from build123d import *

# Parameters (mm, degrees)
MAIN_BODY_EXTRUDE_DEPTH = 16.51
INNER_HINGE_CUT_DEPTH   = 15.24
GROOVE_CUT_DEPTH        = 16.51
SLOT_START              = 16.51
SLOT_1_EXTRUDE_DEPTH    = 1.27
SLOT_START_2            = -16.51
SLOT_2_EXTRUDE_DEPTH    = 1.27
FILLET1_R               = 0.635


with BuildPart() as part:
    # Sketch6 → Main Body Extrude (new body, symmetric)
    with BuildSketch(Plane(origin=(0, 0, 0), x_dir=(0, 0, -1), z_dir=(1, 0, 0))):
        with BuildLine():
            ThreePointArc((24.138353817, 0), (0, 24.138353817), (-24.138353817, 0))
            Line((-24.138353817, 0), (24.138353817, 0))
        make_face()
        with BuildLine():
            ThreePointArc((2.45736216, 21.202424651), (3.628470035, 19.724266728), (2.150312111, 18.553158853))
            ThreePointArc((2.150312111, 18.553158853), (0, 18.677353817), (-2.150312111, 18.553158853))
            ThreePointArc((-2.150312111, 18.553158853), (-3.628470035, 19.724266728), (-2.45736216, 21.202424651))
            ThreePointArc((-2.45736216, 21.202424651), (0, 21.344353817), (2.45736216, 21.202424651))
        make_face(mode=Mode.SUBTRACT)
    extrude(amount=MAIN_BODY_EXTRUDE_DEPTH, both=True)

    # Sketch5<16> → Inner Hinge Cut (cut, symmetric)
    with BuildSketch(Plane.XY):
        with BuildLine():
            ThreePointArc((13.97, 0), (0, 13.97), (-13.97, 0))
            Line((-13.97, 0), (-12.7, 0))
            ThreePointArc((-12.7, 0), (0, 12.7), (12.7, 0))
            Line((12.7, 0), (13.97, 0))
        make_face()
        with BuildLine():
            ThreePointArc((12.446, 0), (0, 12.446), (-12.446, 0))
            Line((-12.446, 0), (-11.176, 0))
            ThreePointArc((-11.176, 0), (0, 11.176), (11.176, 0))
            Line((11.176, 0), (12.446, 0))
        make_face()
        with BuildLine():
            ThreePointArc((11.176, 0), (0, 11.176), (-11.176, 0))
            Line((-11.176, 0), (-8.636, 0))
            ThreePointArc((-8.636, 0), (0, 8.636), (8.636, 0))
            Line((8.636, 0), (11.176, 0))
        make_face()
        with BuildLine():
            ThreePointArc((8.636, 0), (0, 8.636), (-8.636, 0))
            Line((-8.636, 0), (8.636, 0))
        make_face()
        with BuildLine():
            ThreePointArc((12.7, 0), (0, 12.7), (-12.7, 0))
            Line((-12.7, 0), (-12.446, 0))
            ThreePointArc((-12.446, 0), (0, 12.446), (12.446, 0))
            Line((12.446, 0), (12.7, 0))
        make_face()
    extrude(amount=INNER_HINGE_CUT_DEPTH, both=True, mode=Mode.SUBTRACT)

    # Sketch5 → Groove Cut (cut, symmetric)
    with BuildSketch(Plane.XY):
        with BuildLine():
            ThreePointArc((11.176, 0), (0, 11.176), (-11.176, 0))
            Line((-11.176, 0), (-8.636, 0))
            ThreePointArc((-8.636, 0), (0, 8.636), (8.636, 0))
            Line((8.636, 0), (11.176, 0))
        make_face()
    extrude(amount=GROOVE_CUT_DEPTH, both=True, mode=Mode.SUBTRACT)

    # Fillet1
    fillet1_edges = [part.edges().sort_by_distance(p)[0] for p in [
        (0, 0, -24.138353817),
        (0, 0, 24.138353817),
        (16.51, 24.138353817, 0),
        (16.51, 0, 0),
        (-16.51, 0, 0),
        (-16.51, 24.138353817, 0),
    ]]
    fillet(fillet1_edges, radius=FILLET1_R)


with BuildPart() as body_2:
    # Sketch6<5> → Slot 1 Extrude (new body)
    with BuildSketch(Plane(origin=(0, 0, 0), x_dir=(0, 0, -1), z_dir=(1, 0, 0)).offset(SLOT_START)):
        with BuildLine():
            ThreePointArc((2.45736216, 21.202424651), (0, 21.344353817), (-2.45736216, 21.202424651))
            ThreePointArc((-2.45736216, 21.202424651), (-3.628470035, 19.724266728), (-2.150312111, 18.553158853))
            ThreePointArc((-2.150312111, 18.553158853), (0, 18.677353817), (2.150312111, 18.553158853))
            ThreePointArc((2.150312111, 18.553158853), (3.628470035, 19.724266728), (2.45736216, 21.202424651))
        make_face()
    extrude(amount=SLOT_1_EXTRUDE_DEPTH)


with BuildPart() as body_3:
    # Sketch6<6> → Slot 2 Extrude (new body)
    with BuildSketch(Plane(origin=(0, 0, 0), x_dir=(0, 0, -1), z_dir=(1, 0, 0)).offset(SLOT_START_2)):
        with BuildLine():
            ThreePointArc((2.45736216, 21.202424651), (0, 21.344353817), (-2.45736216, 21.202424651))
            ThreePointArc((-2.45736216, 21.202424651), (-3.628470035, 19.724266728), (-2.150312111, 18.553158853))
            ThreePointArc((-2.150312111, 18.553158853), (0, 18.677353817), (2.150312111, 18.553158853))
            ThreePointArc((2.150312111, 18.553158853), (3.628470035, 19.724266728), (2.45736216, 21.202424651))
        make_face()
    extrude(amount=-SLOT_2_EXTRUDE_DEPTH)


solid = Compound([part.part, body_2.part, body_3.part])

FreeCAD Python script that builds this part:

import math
import FreeCAD as App
import Part
import Sketcher
Q = App.Units.Quantity


def edges_at(feature, points):
    """Names of the edges that pass closest to the given points."""
    edges = feature.Shape.Edges
    near = lambda p: min(range(len(edges)), key=lambda i: edges[i].distToShape(Part.Vertex(*p))[0])
    return sorted({f"Edge{near(p) + 1}" for p in points})

doc = App.newDocument("Part")
params = doc.addObject("Spreadsheet::Sheet", "Params")
for row, (alias, value) in enumerate([
    ("pad1_length", "1.3 in"),
    ("sketch2_radius", "0.55 in"),
    ("pocket1_length", "1.2 in"),
    ("sketch3_radius", "0.44 in"),
    ("sketch3_radius2", "0.34 in"),
    ("pocket2_length", "1.3 in"),
    ("fillet_radius", "0.025 in"),
    ("pad2_length", "0.05 in"),
    ("pad3_length", "0.05 in"),
], start=1):
    params.set(f"A{row}", alias)
    params.set(f"B{row}", "=" + value)
    params.setAlias(f"B{row}", alias)

body = doc.addObject("PartDesign::Body", "Body")

# Sketch on YZ plane
sketch1 = body.newObject("Sketcher::SketchObject", "Sketch")
sketch1.AttachmentSupport = (doc.getObject("YZ_Plane"), [""])
sketch1.MapMode = "FlatFace"
sketch1.addGeometry(Part.ArcOfCircle(Part.Circle(App.Vector(0, 0, 0), App.Vector(0, 0, 1), 24.1), math.radians(-90), math.radians(90)), False)
sketch1.addGeometry(Part.LineSegment(App.Vector(0, 24.1, 0), App.Vector(0, -24.1, 0)), False)
sketch1.addGeometry(Part.ArcOfCircle(Part.Circle(App.Vector(0, 0, 0), App.Vector(0, 0, 1), 21.3), math.radians(-6.61), math.radians(6.61)), False)
sketch1.addGeometry(Part.ArcOfCircle(Part.Circle(App.Vector(19.9, -2.3, 0), App.Vector(0, 0, 1), 1.3), math.radians(173), math.radians(353)), False)
sketch1.addGeometry(Part.ArcOfCircle(Part.Circle(App.Vector(0, 0, 0), App.Vector(0, 0, 1), 18.7), math.radians(-6.61), math.radians(6.61)), False)
sketch1.addGeometry(Part.ArcOfCircle(Part.Circle(App.Vector(19.9, 2.3, 0), App.Vector(0, 0, 1), 1.3), math.radians(7), math.radians(187)), False)
sketch1.addConstraint(Sketcher.Constraint("Coincident", 0, 1, 1, 2))
sketch1.addConstraint(Sketcher.Constraint("Coincident", 1, 1, 0, 2))
sketch1.addConstraint(Sketcher.Constraint("Tangent", 2, 1, 3, 2))
sketch1.addConstraint(Sketcher.Constraint("Tangent", 3, 1, 4, 1))
sketch1.addConstraint(Sketcher.Constraint("Tangent", 4, 2, 5, 2))
sketch1.addConstraint(Sketcher.Constraint("Tangent", 5, 1, 2, 2))
sketch1.addConstraint(Sketcher.Constraint("Vertical", 1))
sketch1.addConstraint(Sketcher.Constraint("Coincident", 0, 3, -1, 1))
sketch1.addConstraint(Sketcher.Constraint("Coincident", 2, 3, -1, 1))
sketch1.addConstraint(Sketcher.Constraint("Coincident", 4, 3, -1, 1))
sketch1.addConstraint(Sketcher.Constraint("PointOnObject", 0, 1, -2))
sketch1.addConstraint(Sketcher.Constraint("Vertical", 3, 3, 5, 3))
sketch1.addConstraint(Sketcher.Constraint("Radius", 3, Q("0.0525 in")))
sketch1.addConstraint(Sketcher.Constraint("Radius", 0, Q("24.138354 mm")))
sketch1.addConstraint(Sketcher.Constraint("Radius", 2, Q("21.344354 mm")))
sketch1.addConstraint(Sketcher.Constraint("DistanceY", 2, 1, 5, 3, Q("4.761199 mm")))
pad1 = body.newObject("PartDesign::Pad", "Pad")
pad1.Profile = sketch1
pad1.setExpression("Length", "Params.pad1_length")
pad1.Midplane = True

# Sketch on XY plane
sketch2 = body.newObject("Sketcher::SketchObject", "Sketch001")
sketch2.AttachmentSupport = (doc.getObject("XY_Plane"), [""])
sketch2.MapMode = "FlatFace"
sketch2.addGeometry(Part.ArcOfCircle(Part.Circle(App.Vector(0, 0, 0), App.Vector(0, 0, 1), 14), math.radians(0), math.radians(180)), False)
sketch2.addGeometry(Part.LineSegment(App.Vector(-14, 0, 0), App.Vector(14, 0, 0)), False)
sketch2.addConstraint(Sketcher.Constraint("Coincident", 0, 1, 1, 2))
sketch2.addConstraint(Sketcher.Constraint("Coincident", 1, 1, 0, 2))
sketch2.addConstraint(Sketcher.Constraint("Horizontal", 1))
sketch2.addConstraint(Sketcher.Constraint("Coincident", 0, 3, -1, 1))
sketch2.addConstraint(Sketcher.Constraint("PointOnObject", 0, 1, -1))
sketch2.addConstraint(Sketcher.Constraint("Radius", 0, Q("0.55 in")))
sketch2.setExpression("Constraints[5]", "Params.sketch2_radius")
pocket1 = body.newObject("PartDesign::Pocket", "Pocket")
pocket1.Profile = sketch2
pocket1.setExpression("Length", "Params.pocket1_length")
pocket1.Midplane = True

# Sketch on XY plane
sketch3 = body.newObject("Sketcher::SketchObject", "Sketch002")
sketch3.AttachmentSupport = (doc.getObject("XY_Plane"), [""])
sketch3.MapMode = "FlatFace"
sketch3.addGeometry(Part.ArcOfCircle(Part.Circle(App.Vector(0, 0, 0), App.Vector(0, 0, 1), 11.2), math.radians(0), math.radians(180)), False)
sketch3.addGeometry(Part.LineSegment(App.Vector(-11.2, 0, 0), App.Vector(-8.6, 0, 0)), False)
sketch3.addGeometry(Part.ArcOfCircle(Part.Circle(App.Vector(0, 0, 0), App.Vector(0, 0, 1), 8.6), math.radians(0), math.radians(180)), False)
sketch3.addGeometry(Part.LineSegment(App.Vector(8.6, 0, 0), App.Vector(11.2, 0, 0)), False)
sketch3.addConstraint(Sketcher.Constraint("Coincident", 0, 2, 1, 1))
sketch3.addConstraint(Sketcher.Constraint("Coincident", 1, 2, 2, 2))
sketch3.addConstraint(Sketcher.Constraint("Coincident", 2, 1, 3, 1))
sketch3.addConstraint(Sketcher.Constraint("Coincident", 3, 2, 0, 1))
sketch3.addConstraint(Sketcher.Constraint("Horizontal", 1))
sketch3.addConstraint(Sketcher.Constraint("Horizontal", 3))
sketch3.addConstraint(Sketcher.Constraint("Coincident", 0, 3, -1, 1))
sketch3.addConstraint(Sketcher.Constraint("Coincident", 2, 3, -1, 1))
sketch3.addConstraint(Sketcher.Constraint("PointOnObject", 0, 2, -1))
sketch3.addConstraint(Sketcher.Constraint("PointOnObject", 2, 1, -1))
sketch3.addConstraint(Sketcher.Constraint("Radius", 0, Q("0.44 in")))
sketch3.addConstraint(Sketcher.Constraint("Radius", 2, Q("0.34 in")))
sketch3.setExpression("Constraints[10]", "Params.sketch3_radius")
sketch3.setExpression("Constraints[11]", "Params.sketch3_radius2")
pocket2 = body.newObject("PartDesign::Pocket", "Pocket001")
pocket2.Profile = sketch3
pocket2.setExpression("Length", "Params.pocket2_length")
pocket2.Midplane = True
doc.recompute()

fillet = body.newObject("PartDesign::Fillet", "Fillet")
fillet.Base = (pocket2, edges_at(pocket2, [
    (0, 0, -24.138),
    (0, 0, 24.138),
    (16.51, 24.138, 0),
    (16.51, 0, 0),
    (-16.51, 0, 0),
    (-16.51, 24.138, 0),
]))
fillet.setExpression("Radius", "Params.fillet_radius")
body2 = doc.addObject("PartDesign::Body", "Body001")

# Sketch on YZ plane
sketch4 = body2.newObject("Sketcher::SketchObject", "Sketch003")
sketch4.AttachmentSupport = (doc.getObject("YZ_Plane001"), [""])
sketch4.MapMode = "FlatFace"
sketch4.AttachmentOffset = App.Placement(App.Vector(0, 0, 0.65 * 25.4), App.Rotation())
sketch4.addGeometry(Part.ArcOfCircle(Part.Circle(App.Vector(0, 0, 0), App.Vector(0, 0, 1), 21.3), math.radians(-6.61), math.radians(6.61)), False)
sketch4.addGeometry(Part.ArcOfCircle(Part.Circle(App.Vector(19.9, 2.3, 0), App.Vector(0, 0, 1), 1.3), math.radians(7), math.radians(187)), False)
sketch4.addGeometry(Part.ArcOfCircle(Part.Circle(App.Vector(0, 0, 0), App.Vector(0, 0, 1), 18.7), math.radians(-6.61), math.radians(6.61)), False)
sketch4.addGeometry(Part.ArcOfCircle(Part.Circle(App.Vector(19.9, -2.3, 0), App.Vector(0, 0, 1), 1.3), math.radians(173), math.radians(353)), False)
sketch4.addConstraint(Sketcher.Constraint("Tangent", 0, 2, 1, 1))
sketch4.addConstraint(Sketcher.Constraint("Tangent", 1, 2, 2, 2))
sketch4.addConstraint(Sketcher.Constraint("Tangent", 2, 1, 3, 1))
sketch4.addConstraint(Sketcher.Constraint("Tangent", 3, 2, 0, 1))
sketch4.addConstraint(Sketcher.Constraint("Coincident", 0, 3, -1, 1))
sketch4.addConstraint(Sketcher.Constraint("Coincident", 2, 3, -1, 1))
sketch4.addConstraint(Sketcher.Constraint("Vertical", 1, 3, 3, 3))
sketch4.addConstraint(Sketcher.Constraint("Radius", 1, Q("0.0525 in")))
sketch4.addConstraint(Sketcher.Constraint("Radius", 0, Q("21.344354 mm")))
sketch4.addConstraint(Sketcher.Constraint("DistanceY", 3, 3, 0, 2, Q("4.761199 mm")))
pad2 = body2.newObject("PartDesign::Pad", "Pad001")
pad2.Profile = sketch4
pad2.setExpression("Length", "Params.pad2_length")
body3 = doc.addObject("PartDesign::Body", "Body002")

# Sketch on YZ plane
sketch5 = body3.newObject("Sketcher::SketchObject", "Sketch004")
sketch5.AttachmentSupport = (doc.getObject("YZ_Plane002"), [""])
sketch5.MapMode = "FlatFace"
sketch5.AttachmentOffset = App.Placement(App.Vector(0, 0, -0.65 * 25.4), App.Rotation())
sketch5.addGeometry(Part.ArcOfCircle(Part.Circle(App.Vector(0, 0, 0), App.Vector(0, 0, 1), 21.3), math.radians(-6.61), math.radians(6.61)), False)
sketch5.addGeometry(Part.ArcOfCircle(Part.Circle(App.Vector(19.9, 2.3, 0), App.Vector(0, 0, 1), 1.3), math.radians(7), math.radians(187)), False)
sketch5.addGeometry(Part.ArcOfCircle(Part.Circle(App.Vector(0, 0, 0), App.Vector(0, 0, 1), 18.7), math.radians(-6.61), math.radians(6.61)), False)
sketch5.addGeometry(Part.ArcOfCircle(Part.Circle(App.Vector(19.9, -2.3, 0), App.Vector(0, 0, 1), 1.3), math.radians(173), math.radians(353)), False)
sketch5.addConstraint(Sketcher.Constraint("Tangent", 0, 2, 1, 1))
sketch5.addConstraint(Sketcher.Constraint("Tangent", 1, 2, 2, 2))
sketch5.addConstraint(Sketcher.Constraint("Tangent", 2, 1, 3, 1))
sketch5.addConstraint(Sketcher.Constraint("Tangent", 3, 2, 0, 1))
sketch5.addConstraint(Sketcher.Constraint("Coincident", 0, 3, -1, 1))
sketch5.addConstraint(Sketcher.Constraint("Coincident", 2, 3, -1, 1))
sketch5.addConstraint(Sketcher.Constraint("Vertical", 1, 3, 3, 3))
sketch5.addConstraint(Sketcher.Constraint("Radius", 1, Q("0.0525 in")))
sketch5.addConstraint(Sketcher.Constraint("Radius", 0, Q("21.344354 mm")))
sketch5.addConstraint(Sketcher.Constraint("DistanceY", 3, 3, 0, 2, Q("4.761199 mm")))
pad3 = body3.newObject("PartDesign::Pad", "Pad002")
pad3.Profile = sketch5
pad3.setExpression("Length", "Params.pad3_length")
pad3.Reversed = True

doc.recompute()
